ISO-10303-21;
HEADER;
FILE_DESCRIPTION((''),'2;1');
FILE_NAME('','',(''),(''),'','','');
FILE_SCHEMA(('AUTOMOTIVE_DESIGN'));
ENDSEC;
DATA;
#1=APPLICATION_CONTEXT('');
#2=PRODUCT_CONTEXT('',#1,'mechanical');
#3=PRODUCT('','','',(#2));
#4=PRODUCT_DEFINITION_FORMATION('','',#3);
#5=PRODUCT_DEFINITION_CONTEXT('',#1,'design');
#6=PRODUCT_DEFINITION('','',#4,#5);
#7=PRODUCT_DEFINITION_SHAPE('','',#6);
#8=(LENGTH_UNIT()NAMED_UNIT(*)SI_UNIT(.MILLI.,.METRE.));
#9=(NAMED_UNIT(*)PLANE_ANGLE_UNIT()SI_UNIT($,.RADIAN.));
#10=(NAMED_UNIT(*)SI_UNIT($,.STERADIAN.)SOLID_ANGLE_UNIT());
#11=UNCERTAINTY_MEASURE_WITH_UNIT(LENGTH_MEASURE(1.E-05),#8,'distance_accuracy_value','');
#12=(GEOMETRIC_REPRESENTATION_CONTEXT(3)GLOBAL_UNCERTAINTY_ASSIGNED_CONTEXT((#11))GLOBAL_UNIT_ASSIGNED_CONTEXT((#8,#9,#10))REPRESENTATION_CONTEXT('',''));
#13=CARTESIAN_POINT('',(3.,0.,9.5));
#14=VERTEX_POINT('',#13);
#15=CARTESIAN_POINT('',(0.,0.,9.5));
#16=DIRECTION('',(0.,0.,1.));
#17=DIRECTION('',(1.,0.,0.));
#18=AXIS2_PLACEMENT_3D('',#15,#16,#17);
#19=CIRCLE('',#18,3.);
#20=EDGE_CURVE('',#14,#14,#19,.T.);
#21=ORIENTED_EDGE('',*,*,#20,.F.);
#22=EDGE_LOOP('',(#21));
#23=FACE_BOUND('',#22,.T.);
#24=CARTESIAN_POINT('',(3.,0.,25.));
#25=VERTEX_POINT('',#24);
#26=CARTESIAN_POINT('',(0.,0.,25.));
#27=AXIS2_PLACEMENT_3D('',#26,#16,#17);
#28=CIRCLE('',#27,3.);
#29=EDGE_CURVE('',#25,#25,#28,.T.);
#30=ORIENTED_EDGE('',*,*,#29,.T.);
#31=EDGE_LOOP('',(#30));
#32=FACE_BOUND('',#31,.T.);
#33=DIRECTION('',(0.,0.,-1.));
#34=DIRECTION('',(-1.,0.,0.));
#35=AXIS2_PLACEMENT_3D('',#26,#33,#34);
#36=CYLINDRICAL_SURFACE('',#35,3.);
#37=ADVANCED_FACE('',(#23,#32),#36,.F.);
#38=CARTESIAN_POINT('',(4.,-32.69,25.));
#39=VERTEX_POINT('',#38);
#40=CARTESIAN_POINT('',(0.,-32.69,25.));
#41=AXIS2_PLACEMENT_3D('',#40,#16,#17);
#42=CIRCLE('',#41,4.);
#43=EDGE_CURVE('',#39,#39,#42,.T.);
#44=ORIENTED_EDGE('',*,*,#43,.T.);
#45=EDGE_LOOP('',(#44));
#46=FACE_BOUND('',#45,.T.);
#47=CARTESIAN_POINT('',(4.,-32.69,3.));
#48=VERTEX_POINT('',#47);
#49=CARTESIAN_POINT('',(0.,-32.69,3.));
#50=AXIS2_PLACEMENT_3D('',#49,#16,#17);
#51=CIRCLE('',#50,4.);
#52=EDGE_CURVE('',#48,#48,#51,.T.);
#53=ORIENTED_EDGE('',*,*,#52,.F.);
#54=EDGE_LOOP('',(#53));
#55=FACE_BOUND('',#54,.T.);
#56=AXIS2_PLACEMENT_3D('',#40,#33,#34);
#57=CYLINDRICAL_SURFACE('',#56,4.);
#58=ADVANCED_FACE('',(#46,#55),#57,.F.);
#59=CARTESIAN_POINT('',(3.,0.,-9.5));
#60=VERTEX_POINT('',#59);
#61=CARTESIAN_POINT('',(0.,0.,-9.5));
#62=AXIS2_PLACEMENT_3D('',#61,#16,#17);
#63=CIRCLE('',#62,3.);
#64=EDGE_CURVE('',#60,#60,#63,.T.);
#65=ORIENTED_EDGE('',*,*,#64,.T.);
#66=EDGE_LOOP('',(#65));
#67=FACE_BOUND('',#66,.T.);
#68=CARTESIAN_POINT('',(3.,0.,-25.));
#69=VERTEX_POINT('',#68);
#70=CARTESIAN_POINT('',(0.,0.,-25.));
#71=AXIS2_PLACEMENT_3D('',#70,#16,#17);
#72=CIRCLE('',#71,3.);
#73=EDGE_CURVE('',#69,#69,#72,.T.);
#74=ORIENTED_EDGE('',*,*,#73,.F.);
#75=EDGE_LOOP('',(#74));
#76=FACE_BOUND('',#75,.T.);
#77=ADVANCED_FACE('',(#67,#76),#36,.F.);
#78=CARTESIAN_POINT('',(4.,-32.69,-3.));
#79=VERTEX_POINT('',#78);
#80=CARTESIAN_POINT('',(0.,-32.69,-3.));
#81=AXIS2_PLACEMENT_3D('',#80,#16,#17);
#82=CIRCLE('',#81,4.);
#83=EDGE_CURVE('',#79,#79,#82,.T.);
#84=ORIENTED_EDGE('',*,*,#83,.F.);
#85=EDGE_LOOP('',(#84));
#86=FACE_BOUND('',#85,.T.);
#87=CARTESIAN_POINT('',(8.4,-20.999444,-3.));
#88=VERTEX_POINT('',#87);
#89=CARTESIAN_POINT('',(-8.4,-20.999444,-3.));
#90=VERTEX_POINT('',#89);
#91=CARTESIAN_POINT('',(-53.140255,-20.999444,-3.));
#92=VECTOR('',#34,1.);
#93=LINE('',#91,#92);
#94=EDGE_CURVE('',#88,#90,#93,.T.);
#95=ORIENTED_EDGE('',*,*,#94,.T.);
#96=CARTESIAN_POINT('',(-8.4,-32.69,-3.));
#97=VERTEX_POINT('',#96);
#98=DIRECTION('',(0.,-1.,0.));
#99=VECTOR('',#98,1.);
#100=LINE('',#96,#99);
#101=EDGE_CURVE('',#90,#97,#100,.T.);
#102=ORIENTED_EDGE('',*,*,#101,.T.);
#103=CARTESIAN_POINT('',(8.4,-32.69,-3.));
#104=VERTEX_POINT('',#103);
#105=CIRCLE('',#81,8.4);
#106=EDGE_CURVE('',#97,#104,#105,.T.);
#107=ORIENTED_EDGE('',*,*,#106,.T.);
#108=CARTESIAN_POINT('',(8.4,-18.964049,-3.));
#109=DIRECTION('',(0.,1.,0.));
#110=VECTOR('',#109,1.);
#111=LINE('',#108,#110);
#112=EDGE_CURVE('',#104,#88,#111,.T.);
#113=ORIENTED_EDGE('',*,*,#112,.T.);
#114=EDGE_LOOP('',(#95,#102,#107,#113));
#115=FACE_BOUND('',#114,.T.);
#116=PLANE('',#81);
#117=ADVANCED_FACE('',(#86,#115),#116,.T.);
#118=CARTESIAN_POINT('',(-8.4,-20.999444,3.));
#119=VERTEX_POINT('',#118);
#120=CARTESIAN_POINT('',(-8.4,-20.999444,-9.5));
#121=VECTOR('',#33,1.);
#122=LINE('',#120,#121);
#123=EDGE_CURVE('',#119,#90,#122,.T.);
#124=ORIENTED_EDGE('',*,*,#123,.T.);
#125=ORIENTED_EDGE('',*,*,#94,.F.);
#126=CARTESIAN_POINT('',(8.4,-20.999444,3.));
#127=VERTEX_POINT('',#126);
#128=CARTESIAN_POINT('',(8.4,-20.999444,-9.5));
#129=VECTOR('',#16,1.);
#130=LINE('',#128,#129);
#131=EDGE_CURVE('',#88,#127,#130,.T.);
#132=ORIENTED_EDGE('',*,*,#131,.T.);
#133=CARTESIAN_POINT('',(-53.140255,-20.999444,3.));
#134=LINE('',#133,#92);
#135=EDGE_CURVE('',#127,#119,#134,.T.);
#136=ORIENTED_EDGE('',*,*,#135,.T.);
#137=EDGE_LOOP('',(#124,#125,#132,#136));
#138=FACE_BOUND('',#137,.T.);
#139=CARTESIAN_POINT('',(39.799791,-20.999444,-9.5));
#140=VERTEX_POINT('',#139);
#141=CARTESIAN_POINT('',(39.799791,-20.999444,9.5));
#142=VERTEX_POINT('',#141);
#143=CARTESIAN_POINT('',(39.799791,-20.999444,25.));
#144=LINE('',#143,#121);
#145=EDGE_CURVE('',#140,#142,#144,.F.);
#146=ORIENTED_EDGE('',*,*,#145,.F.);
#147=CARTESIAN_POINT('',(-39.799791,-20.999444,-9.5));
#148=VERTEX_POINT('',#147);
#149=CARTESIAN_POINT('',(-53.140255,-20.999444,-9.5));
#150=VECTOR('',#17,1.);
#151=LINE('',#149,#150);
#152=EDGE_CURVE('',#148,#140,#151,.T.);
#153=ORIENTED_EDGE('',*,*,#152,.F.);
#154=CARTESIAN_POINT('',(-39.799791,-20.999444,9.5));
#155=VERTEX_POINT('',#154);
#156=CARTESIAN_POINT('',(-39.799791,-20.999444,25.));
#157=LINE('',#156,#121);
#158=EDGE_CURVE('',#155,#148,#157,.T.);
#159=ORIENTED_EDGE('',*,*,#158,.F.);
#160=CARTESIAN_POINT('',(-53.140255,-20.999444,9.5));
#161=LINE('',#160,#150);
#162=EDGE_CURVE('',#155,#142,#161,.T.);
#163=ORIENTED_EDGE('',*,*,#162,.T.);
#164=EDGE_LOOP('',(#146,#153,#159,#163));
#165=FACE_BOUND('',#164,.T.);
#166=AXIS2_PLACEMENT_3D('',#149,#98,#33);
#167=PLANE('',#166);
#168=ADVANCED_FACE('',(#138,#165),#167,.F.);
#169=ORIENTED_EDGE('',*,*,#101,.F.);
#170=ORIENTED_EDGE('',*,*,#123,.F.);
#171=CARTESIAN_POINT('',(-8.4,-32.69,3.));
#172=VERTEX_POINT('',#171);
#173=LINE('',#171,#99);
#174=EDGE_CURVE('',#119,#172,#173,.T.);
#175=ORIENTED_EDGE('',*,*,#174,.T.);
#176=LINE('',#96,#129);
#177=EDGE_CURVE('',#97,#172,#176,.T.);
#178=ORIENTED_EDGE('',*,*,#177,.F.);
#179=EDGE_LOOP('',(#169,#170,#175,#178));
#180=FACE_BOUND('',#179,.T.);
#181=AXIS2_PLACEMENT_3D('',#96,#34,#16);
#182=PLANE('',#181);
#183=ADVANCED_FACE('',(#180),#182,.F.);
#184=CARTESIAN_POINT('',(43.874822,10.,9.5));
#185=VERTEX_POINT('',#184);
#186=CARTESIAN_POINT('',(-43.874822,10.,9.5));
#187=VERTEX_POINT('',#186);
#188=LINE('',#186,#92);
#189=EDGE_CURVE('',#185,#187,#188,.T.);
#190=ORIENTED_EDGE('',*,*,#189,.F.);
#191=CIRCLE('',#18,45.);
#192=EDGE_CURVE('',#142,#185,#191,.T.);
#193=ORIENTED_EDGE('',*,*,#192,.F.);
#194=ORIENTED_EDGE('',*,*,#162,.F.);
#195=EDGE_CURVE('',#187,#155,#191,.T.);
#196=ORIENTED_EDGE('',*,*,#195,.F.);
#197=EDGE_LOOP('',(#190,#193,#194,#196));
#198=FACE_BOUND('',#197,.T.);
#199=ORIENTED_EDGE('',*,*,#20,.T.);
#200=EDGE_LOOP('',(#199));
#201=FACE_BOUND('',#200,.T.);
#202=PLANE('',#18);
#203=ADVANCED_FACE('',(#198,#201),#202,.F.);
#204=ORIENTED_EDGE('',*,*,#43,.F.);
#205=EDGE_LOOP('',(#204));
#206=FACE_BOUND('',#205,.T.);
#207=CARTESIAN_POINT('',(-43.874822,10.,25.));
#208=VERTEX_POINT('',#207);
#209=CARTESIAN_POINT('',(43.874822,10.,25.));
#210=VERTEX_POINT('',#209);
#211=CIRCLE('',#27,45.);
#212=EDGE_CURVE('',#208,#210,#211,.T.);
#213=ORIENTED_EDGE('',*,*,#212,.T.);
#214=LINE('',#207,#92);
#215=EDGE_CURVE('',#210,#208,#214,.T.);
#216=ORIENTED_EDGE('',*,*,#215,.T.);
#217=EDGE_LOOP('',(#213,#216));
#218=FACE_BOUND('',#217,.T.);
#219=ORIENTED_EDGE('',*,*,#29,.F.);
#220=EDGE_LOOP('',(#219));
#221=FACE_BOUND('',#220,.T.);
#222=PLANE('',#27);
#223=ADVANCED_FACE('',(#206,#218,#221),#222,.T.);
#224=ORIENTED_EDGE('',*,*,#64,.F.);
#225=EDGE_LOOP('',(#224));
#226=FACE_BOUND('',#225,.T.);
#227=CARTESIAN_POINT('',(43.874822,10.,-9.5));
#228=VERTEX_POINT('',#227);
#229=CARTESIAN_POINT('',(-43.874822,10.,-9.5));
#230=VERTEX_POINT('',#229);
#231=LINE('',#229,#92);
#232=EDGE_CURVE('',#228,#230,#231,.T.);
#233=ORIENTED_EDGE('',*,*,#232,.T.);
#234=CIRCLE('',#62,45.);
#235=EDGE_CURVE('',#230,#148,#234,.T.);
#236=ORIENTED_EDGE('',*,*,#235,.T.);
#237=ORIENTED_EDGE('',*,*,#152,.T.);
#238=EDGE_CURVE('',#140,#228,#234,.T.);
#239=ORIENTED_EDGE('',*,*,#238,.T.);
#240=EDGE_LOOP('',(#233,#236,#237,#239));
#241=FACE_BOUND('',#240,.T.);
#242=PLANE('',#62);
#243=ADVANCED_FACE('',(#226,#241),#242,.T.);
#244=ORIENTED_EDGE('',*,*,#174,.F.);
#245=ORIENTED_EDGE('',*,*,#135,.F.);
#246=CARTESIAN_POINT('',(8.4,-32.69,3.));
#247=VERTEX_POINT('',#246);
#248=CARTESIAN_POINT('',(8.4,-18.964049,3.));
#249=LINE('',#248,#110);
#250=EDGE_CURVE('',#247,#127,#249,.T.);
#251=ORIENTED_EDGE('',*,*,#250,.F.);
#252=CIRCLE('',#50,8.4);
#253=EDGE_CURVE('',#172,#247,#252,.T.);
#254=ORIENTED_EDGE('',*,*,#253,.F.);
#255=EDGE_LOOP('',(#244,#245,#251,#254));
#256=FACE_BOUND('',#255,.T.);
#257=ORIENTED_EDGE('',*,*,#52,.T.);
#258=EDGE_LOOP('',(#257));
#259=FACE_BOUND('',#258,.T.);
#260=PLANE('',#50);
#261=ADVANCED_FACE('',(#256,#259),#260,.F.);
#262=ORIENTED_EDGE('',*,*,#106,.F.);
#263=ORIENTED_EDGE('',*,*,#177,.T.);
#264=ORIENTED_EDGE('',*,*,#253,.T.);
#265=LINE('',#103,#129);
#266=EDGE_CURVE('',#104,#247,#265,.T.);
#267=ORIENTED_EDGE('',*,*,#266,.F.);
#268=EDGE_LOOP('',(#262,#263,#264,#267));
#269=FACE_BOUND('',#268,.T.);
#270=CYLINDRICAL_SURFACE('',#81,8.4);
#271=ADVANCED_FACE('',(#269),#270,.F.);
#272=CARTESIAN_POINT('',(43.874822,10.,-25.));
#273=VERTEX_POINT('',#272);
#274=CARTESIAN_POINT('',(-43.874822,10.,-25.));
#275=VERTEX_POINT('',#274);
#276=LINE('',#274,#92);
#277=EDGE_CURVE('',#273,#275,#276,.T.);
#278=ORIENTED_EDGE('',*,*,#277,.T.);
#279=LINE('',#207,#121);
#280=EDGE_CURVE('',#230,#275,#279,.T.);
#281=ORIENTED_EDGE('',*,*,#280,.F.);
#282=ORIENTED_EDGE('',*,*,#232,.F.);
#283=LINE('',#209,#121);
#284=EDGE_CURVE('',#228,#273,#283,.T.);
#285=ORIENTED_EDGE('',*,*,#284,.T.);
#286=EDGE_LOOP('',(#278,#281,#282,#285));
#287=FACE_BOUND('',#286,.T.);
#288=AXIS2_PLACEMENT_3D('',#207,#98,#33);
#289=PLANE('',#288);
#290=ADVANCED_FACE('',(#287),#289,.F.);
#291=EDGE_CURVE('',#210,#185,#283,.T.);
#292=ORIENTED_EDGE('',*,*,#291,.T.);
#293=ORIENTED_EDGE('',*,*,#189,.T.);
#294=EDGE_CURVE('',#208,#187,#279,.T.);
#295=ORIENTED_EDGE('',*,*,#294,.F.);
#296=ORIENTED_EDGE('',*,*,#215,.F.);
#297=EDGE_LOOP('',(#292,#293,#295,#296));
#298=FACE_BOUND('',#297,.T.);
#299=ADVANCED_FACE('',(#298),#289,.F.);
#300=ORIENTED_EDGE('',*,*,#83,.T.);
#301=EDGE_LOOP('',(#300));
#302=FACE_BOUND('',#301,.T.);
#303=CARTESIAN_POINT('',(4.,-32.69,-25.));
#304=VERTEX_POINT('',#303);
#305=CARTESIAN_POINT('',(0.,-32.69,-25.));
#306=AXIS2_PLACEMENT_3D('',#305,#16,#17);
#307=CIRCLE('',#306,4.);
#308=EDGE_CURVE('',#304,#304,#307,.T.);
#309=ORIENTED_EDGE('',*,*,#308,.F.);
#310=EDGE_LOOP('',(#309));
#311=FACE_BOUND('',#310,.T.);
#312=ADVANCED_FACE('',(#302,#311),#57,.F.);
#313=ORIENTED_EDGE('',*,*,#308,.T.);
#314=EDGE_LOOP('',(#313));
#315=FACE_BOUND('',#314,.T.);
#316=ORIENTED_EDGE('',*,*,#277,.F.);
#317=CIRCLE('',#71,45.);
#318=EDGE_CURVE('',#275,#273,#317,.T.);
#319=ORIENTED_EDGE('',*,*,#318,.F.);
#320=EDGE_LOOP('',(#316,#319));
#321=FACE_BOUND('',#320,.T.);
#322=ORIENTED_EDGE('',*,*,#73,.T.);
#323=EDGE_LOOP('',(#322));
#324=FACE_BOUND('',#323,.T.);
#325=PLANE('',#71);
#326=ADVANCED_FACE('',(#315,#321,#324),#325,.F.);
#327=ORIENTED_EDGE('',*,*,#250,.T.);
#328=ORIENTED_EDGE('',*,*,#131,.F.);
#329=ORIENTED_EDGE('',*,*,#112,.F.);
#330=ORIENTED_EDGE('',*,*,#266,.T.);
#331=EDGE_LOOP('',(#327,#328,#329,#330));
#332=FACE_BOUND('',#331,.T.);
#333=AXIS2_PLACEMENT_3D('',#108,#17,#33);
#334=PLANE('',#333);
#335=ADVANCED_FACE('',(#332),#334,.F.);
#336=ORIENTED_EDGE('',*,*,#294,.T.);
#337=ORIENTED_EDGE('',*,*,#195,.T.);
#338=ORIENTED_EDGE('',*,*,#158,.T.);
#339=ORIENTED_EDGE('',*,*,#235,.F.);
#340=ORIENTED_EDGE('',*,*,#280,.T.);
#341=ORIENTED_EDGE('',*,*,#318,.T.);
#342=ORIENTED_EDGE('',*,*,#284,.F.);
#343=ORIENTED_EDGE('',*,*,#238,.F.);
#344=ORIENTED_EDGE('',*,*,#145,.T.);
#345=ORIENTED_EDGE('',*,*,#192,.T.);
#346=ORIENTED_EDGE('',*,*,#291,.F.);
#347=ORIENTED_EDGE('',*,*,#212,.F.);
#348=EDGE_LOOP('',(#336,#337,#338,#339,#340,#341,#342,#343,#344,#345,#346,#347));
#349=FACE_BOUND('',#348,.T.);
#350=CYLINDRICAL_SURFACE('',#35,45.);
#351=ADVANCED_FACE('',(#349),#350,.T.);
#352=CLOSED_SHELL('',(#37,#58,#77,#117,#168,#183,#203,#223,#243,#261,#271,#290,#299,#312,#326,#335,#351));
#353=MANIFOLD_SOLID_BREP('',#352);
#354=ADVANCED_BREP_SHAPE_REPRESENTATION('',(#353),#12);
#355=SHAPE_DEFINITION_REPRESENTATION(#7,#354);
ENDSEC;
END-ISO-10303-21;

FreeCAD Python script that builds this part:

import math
import FreeCAD as App
import Part
import Sketcher

V = App.Vector

doc = App.newDocument("Part")
body = doc.addObject("PartDesign::Body", "Body")

sketch1 = body.newObject("Sketcher::SketchObject", "Sketch")
sketch1.AttachmentSupport = (doc.getObject("XY_Plane"), [""])
sketch1.MapMode = "FlatFace"
sketch1.addGeometry(Part.LineSegment(V(43.9, 10, 0), V(-43.9, 10, 0)), False)
sketch1.addGeometry(Part.ArcOfCircle(Part.Circle(V(0, 0, 0), V(0, 0, 1), 45), math.radians(167), math.radians(373)), False)
sketch1.addGeometry(Part.Circle(V(0, -32.7, 0), V(0, 0, 1), 4), False)
sketch1.addGeometry(Part.Circle(V(0, 0, 0), V(0, 0, 1), 3), False)
sketch1.addConstraint(Sketcher.Constraint("Coincident", 0, 1, 1, 2))
sketch1.addConstraint(Sketcher.Constraint("Coincident", 1, 1, 0, 2))
sketch1.addConstraint(Sketcher.Constraint("Horizontal", 0))
sketch1.addConstraint(Sketcher.Constraint("Coincident", 1, 3, -1, 1))
sketch1.addConstraint(Sketcher.Constraint("Coincident", 3, 3, -1, 1))
sketch1.addConstraint(Sketcher.Constraint("PointOnObject", 2, 3, -2))
sketch1.addConstraint(Sketcher.Constraint("Diameter", 2, 8.0))
sketch1.addConstraint(Sketcher.Constraint("Diameter", 3, 6.0))
sketch1.addConstraint(Sketcher.Constraint("Radius", 1, 45.0))
sketch1.addConstraint(Sketcher.Constraint("DistanceY", -1, 1, 0, 1, 10.0))
sketch1.addConstraint(Sketcher.Constraint("DistanceY", 2, 3, -1, 1, 32.69))
pad1 = body.newObject("PartDesign::Pad", "Pad")
pad1.Profile = sketch1
pad1.Length = 50
pad1.Midplane = True

sketch2 = body.newObject("Sketcher::SketchObject", "Sketch001")
sketch2.AttachmentSupport = (doc.getObject("XY_Plane"), [""])
sketch2.MapMode = "FlatFace"
sketch2.addGeometry(Part.LineSegment(V(-53, 21, 0), V(-53, -21, 0)), False)
sketch2.addGeometry(Part.LineSegment(V(-53, -21, 0), V(53, -21, 0)), False)
sketch2.addGeometry(Part.LineSegment(V(53, -21, 0), V(53, 21, 0)), False)
sketch2.addGeometry(Part.LineSegment(V(53, 21, 0), V(-53, 21, 0)), False)
sketch2.addConstraint(Sketcher.Constraint("Coincident", 0, 2, 1, 1))
sketch2.addConstraint(Sketcher.Constraint("Coincident", 1, 2, 2, 1))
sketch2.addConstraint(Sketcher.Constraint("Coincident", 2, 2, 3, 1))
sketch2.addConstraint(Sketcher.Constraint("Coincident", 3, 2, 0, 1))
sketch2.addConstraint(Sketcher.Constraint("Vertical", 0))
sketch2.addConstraint(Sketcher.Constraint("Horizontal", 1))
sketch2.addConstraint(Sketcher.Constraint("Vertical", 2))
sketch2.addConstraint(Sketcher.Constraint("Horizontal", 3))
sketch2.addConstraint(Sketcher.Constraint("Symmetric", 0, 2, 2, 2, -1, 1))
sketch2.addConstraint(Sketcher.Constraint("DistanceX", 1, 1, 1, 2, 106.280509))
sketch2.addConstraint(Sketcher.Constraint("DistanceY", 0, 2, 0, 1, 41.998889))
pocket1 = body.newObject("PartDesign::Pocket", "Pocket")
pocket1.Profile = sketch2
pocket1.Length = 19
pocket1.Midplane = True

sketch3 = body.newObject("Sketcher::SketchObject", "Sketch002")
sketch3.AttachmentSupport = (doc.getObject("XY_Plane"), [""])
sketch3.MapMode = "FlatFace"
sketch3.addGeometry(Part.LineSegment(V(-8, -19, 0), V(-8, -33, 0)), False)
sketch3.addGeometry(Part.ArcOfCircle(Part.Circle(V(0, -33, 0), V(0, 0, 1), 8), math.radians(180), math.radians(360)), False)
sketch3.addGeometry(Part.LineSegment(V(8, -33, 0), V(8, -19, 0)), False)
sketch3.addGeometry(Part.LineSegment(V(8, -19, 0), V(-8, -19, 0)), False)
sketch3.addConstraint(Sketcher.Constraint("Tangent", 0, 2, 1, 1))
sketch3.addConstraint(Sketcher.Constraint("Tangent", 1, 2, 2, 1))
sketch3.addConstraint(Sketcher.Constraint("Coincident", 2, 2, 3, 1))
sketch3.addConstraint(Sketcher.Constraint("Coincident", 3, 2, 0, 1))
sketch3.addConstraint(Sketcher.Constraint("Vertical", 0))
sketch3.addConstraint(Sketcher.Constraint("Vertical", 2))
sketch3.addConstraint(Sketcher.Constraint("Horizontal", 3))
sketch3.addConstraint(Sketcher.Constraint("PointOnObject", 1, 3, -2))
sketch3.addConstraint(Sketcher.Constraint("Radius", 1, 8.4))
sketch3.addConstraint(Sketcher.Constraint("DistanceY", 1, 3, -1, 1, 32.69))
sketch3.addConstraint(Sketcher.Constraint("DistanceY", 0, 2, 0, 1, 13.725951))
pocket2 = body.newObject("PartDesign::Pocket", "Pocket001")
pocket2.Profile = sketch3
pocket2.Length = 6
pocket2.Midplane = True

doc.recompute()
